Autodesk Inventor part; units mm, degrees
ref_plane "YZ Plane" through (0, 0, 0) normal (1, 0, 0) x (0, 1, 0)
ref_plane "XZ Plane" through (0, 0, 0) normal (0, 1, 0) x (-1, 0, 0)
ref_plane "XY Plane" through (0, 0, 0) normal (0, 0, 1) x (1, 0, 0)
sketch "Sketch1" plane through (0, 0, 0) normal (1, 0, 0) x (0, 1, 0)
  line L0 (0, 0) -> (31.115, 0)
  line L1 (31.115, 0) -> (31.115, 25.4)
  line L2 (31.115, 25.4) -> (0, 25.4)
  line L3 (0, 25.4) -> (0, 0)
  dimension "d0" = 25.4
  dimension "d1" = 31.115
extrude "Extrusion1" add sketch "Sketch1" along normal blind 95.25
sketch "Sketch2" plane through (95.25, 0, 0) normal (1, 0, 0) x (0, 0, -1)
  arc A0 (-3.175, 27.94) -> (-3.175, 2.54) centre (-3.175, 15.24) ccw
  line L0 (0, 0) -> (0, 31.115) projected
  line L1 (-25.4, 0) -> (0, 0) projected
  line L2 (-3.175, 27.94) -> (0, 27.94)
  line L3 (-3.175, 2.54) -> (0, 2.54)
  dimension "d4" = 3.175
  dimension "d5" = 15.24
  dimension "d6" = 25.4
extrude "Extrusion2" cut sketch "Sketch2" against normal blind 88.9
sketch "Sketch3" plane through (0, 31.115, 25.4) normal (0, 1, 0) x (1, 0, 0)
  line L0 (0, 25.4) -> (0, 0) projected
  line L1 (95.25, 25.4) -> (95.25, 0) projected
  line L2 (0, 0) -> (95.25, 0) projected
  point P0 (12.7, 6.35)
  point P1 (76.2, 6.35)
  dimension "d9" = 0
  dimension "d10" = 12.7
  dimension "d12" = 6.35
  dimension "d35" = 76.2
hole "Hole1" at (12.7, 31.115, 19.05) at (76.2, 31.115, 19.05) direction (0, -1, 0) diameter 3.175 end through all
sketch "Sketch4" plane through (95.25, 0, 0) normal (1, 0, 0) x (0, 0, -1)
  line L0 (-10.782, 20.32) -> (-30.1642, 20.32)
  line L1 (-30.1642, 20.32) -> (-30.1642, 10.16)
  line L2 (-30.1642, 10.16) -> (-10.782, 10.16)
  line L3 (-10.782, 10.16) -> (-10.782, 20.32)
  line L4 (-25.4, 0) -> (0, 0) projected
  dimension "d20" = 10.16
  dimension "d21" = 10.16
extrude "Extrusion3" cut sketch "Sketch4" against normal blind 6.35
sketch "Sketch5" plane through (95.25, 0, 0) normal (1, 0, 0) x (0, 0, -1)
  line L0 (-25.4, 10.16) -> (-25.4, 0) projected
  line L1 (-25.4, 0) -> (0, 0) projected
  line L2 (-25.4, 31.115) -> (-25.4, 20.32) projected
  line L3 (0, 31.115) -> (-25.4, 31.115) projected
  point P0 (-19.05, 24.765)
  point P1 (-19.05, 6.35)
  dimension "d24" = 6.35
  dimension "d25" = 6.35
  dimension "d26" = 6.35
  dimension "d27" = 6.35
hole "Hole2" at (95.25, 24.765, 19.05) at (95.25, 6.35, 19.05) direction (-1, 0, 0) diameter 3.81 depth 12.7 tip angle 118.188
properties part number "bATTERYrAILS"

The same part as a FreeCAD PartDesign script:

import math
import FreeCAD as App
import Part
import Sketcher
from FreeCAD import Vector
Q = App.Units.Quantity


def add_polygon(sketch, points):
    """Adds a closed chain of lines whose ends are joined by coincident constraints."""
    first, n = sketch.GeometryCount, len(points)
    for a, b in zip(points, points[1:] + points[:1]):
        sketch.addGeometry(Part.LineSegment(App.Vector(*a, 0), App.Vector(*b, 0)), False)
    for i in range(n):
        sketch.addConstraint(Sketcher.Constraint("Coincident", first + i, 2, first + (i + 1) % n, 1))

doc = App.newDocument("Part")
body = doc.addObject("PartDesign::Body", "Body")

# Sketch on YZ plane
sketch1 = body.newObject("Sketcher::SketchObject", "Sketch")
sketch1.AttachmentSupport = (doc.getObject("YZ_Plane"), [""])
sketch1.MapMode = "FlatFace"
add_polygon(sketch1, [(0, 25), (0, 0), (31, 0), (31, 25)])  # lines 0-3
sketch1.addConstraint([
    Sketcher.Constraint("Vertical", 0),
    Sketcher.Constraint("Horizontal", 1),
    Sketcher.Constraint("Vertical", 2),
    Sketcher.Constraint("Horizontal", 3),
    Sketcher.Constraint("Coincident", 0, 2, -1, 1),
    Sketcher.Constraint("DistanceY", 0, 2, 0, 1, Q("1 in")),
    Sketcher.Constraint("DistanceX", 1, 1, 1, 2, Q("1.225 in")),
])
pad1 = body.newObject("PartDesign::Pad", "Pad")
pad1.Profile = sketch1
pad1.Length = Q("3.75 in")

# Sketch on YZ plane
sketch2 = body.newObject("Sketcher::SketchObject", "Sketch001")
sketch2.AttachmentSupport = (doc.getObject("YZ_Plane"), [""])
sketch2.MapMode = "FlatFace"
sketch2.AttachmentOffset = App.Placement(Vector(0, 0, 3.75 * 25.4), App.Rotation())
sketch2.addGeometry([
    Part.LineSegment(Vector(27.9, 0, 0), Vector(27.9, 3.2, 0)),
    Part.ArcOfCircle(Part.Circle(Vector(15.2, 3.2, 0), Vector(0, 0, 1), 12.7), math.radians(0), math.radians(180)),
    Part.LineSegment(Vector(2.5, 3.2, 0), Vector(2.5, 0, 0)),
    Part.LineSegment(Vector(2.5, 0, 0), Vector(27.9, 0, 0)),
], False)
sketch2.addConstraint([
    Sketcher.Constraint("Tangent", 0, 2, 1, 1),
    Sketcher.Constraint("Tangent", 1, 2, 2, 1),
    Sketcher.Constraint("Coincident", 2, 2, 3, 1),
    Sketcher.Constraint("Coincident", 3, 2, 0, 1),
    Sketcher.Constraint("Vertical", 0),
    Sketcher.Constraint("Vertical", 2),
    Sketcher.Constraint("Horizontal", 3),
    Sketcher.Constraint("PointOnObject", 2, 2, -1),
    Sketcher.Constraint("Radius", 1, Q("0.5 in")),
    Sketcher.Constraint("DistanceX", -1, 1, 1, 3, Q("0.6 in")),
    Sketcher.Constraint("DistanceY", 0, 1, 0, 2, Q("0.125 in")),
])
pocket1 = body.newObject("PartDesign::Pocket", "Pocket")
pocket1.Profile = sketch2
pocket1.Length = Q("3.5 in")

# Sketch on XZ plane
sketch3 = body.newObject("Sketcher::SketchObject", "Sketch002")
sketch3.AttachmentSupport = (doc.getObject("XZ_Plane"), [""])
sketch3.MapMode = "FlatFace"
sketch3.AttachmentOffset = App.Placement(Vector(0, 0, -1.225 * 25.4), App.Rotation())
sketch3.addGeometry([
    Part.Circle(Vector(12.7, 19.1, 0), Vector(0, 0, 1), 1.6),
    Part.Circle(Vector(76.2, 19.1, 0), Vector(0, 0, 1), 1.6),
], False)
sketch3.addConstraint([
    Sketcher.Constraint("Equal", 0, 1),
    Sketcher.Constraint("Horizontal", 0, 3, 1, 3),
    Sketcher.Constraint("Diameter", 0, Q("0.125 in")),
    Sketcher.Constraint("DistanceX", -1, 1, 1, 3, Q("3 in")),
    Sketcher.Constraint("DistanceX", -1, 1, 0, 3, Q("0.5 in")),
    Sketcher.Constraint("DistanceY", -1, 1, 0, 3, Q("0.75 in")),
])
doc.recompute()
hole = body.newObject("PartDesign::Hole", "Hole")
hole.Profile = sketch3
hole.ThreadType = "None"
hole.Diameter = Q("0.125 in")
hole.DepthType = "ThroughAll"
hole.Reversed = True

# Sketch on YZ plane
sketch4 = body.newObject("Sketcher::SketchObject", "Sketch003")
sketch4.AttachmentSupport = (doc.getObject("YZ_Plane"), [""])
sketch4.MapMode = "FlatFace"
sketch4.AttachmentOffset = App.Placement(Vector(0, 0, 3.75 * 25.4), App.Rotation())
add_polygon(sketch4, [(10, 11), (20, 11), (20, 30), (10, 30)])  # lines 0-3
sketch4.addConstraint([
    Sketcher.Constraint("Horizontal", 0),
    Sketcher.Constraint("Vertical", 1),
    Sketcher.Constraint("Horizontal", 2),
    Sketcher.Constraint("Vertical", 3),
    Sketcher.Constraint("DistanceX", 0, 1, 0, 2, Q("0.4 in")),
    Sketcher.Constraint("DistanceX", -1, 1, 2, 2, Q("0.4 in")),
    Sketcher.Constraint("DistanceY", 1, 1, 1, 2, Q("19.3822 mm")),
    Sketcher.Constraint("DistanceY", -1, 1, 0, 2, Q("0.4245 in")),
])
pocket2 = body.newObject("PartDesign::Pocket", "Pocket001")
pocket2.Profile = sketch4
pocket2.Length = Q("0.25 in")

# Sketch on YZ plane
sketch5 = body.newObject("Sketcher::SketchObject", "Sketch004")
sketch5.AttachmentSupport = (doc.getObject("YZ_Plane"), [""])
sketch5.MapMode = "FlatFace"
sketch5.AttachmentOffset = App.Placement(Vector(0, 0, 3.75 * 25.4), App.Rotation())
sketch5.addGeometry([
    Part.Circle(Vector(24.8, 19.1, 0), Vector(0, 0, 1), 1.9),
    Part.Circle(Vector(6.3, 19.1, 0), Vector(0, 0, 1), 1.9),
], False)
sketch5.addConstraint([
    Sketcher.Constraint("Equal", 0, 1),
    Sketcher.Constraint("Horizontal", 0, 3, 1, 3),
    Sketcher.Constraint("Diameter", 0, Q("0.15 in")),
    Sketcher.Constraint("DistanceY", -1, 1, 0, 3, Q("0.75 in")),
    Sketcher.Constraint("DistanceX", -1, 1, 1, 3, Q("0.25 in")),
    Sketcher.Constraint("DistanceX", -1, 1, 0, 3, Q("0.975 in")),
])
doc.recompute()
hole2 = body.newObject("PartDesign::Hole", "Hole001")
hole2.Profile = sketch5
hole2.ThreadType = "None"
hole2.Diameter = Q("0.15 in")
hole2.DepthType = "Dimension"
hole2.Depth = Q("0.5 in")
hole2.DrillPoint = "Angled"
hole2.DrillPointAngle = 118.188

doc.recompute()
